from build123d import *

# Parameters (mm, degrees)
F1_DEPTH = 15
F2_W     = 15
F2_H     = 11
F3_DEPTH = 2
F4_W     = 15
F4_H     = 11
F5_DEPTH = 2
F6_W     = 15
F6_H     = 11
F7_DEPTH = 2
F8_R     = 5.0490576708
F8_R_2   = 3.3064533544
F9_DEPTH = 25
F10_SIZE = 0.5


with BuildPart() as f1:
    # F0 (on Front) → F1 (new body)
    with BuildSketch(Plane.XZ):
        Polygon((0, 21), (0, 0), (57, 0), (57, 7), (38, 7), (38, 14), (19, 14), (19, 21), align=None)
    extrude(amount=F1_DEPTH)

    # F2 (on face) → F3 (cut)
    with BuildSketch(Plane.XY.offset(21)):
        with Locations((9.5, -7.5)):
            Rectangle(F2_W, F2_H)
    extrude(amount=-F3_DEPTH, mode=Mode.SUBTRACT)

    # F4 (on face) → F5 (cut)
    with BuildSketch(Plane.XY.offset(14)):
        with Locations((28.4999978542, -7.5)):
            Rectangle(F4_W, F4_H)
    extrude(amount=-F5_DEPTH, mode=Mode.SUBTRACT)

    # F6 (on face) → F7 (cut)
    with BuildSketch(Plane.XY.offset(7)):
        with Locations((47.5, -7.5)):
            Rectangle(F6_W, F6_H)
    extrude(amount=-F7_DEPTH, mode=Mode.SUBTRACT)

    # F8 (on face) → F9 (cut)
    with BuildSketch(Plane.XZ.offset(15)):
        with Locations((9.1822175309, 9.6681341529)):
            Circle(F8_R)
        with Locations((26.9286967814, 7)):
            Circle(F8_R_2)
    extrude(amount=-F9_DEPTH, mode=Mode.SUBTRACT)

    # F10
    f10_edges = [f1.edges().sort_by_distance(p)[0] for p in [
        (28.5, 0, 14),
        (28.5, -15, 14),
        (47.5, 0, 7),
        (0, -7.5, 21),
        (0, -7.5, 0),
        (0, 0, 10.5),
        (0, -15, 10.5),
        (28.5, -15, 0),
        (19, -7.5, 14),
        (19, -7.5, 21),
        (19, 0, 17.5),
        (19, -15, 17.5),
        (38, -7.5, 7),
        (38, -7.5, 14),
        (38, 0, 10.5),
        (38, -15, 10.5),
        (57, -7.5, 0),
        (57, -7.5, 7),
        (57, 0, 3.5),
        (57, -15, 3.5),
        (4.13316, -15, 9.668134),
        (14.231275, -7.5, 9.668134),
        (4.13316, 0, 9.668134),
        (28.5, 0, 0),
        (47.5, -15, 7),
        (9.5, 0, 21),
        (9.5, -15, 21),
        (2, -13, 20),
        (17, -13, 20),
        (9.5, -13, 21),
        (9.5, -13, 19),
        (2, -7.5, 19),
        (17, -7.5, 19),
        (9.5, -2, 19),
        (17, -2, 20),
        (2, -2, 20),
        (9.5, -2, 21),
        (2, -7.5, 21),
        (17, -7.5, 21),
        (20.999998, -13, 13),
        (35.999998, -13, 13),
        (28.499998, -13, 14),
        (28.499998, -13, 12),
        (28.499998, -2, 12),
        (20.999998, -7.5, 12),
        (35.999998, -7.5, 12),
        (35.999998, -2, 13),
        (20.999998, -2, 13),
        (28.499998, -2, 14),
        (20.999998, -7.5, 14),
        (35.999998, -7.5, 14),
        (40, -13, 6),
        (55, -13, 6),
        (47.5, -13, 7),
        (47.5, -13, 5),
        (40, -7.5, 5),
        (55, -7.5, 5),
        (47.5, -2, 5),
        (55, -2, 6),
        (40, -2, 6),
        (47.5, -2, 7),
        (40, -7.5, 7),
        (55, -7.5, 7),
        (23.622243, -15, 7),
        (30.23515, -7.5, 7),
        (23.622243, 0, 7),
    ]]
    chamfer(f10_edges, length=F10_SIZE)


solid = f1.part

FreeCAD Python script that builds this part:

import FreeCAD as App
import Part
import Sketcher
from FreeCAD import Vector


def add_polygon(sketch, points):
    """Adds a closed chain of lines whose ends are joined by coincident constraints."""
    first, n = sketch.GeometryCount, len(points)
    for a, b in zip(points, points[1:] + points[:1]):
        sketch.addGeometry(Part.LineSegment(App.Vector(*a, 0), App.Vector(*b, 0)), False)
    for i in range(n):
        sketch.addConstraint(Sketcher.Constraint("Coincident", first + i, 2, first + (i + 1) % n, 1))

doc = App.newDocument("Part")
body = doc.addObject("PartDesign::Body", "Body")

sketch1 = doc.addObject("Sketcher::SketchObject", "Sketch")
body.addObject(sketch1)
sketch1.AttachmentSupport = (doc.XZ_Plane, [""])
sketch1.MapMode = "FlatFace"
add_polygon(sketch1, [(0, 21), (0, 0), (57, 0), (57, 7), (38, 7), (38, 14), (19, 14), (19, 21)])
sketch1.addConstraint(Sketcher.Constraint("Vertical", 0))
sketch1.addConstraint(Sketcher.Constraint("Horizontal", 1))
sketch1.addConstraint(Sketcher.Constraint("Vertical", 2))
sketch1.addConstraint(Sketcher.Constraint("Horizontal", 3))
sketch1.addConstraint(Sketcher.Constraint("Vertical", 4))
sketch1.addConstraint(Sketcher.Constraint("Horizontal", 5))
sketch1.addConstraint(Sketcher.Constraint("Vertical", 6))
sketch1.addConstraint(Sketcher.Constraint("Horizontal", 7))
sketch1.addConstraint(Sketcher.Constraint("Coincident", 0, 2, -1, 1))
sketch1.addConstraint(Sketcher.Constraint("Equal", 3, 5))
sketch1.addConstraint(Sketcher.Constraint("Equal", 5, 7))
sketch1.addConstraint(Sketcher.Constraint("Equal", 2, 4))
sketch1.addConstraint(Sketcher.Constraint("Equal", 4, 6))
sketch1.addConstraint(Sketcher.Constraint("DistanceX", 1, 1, 1, 2, 57.0))
sketch1.addConstraint(Sketcher.Constraint("DistanceY", 0, 2, 0, 1, 21.0))
pad1 = doc.addObject("PartDesign::Pad", "Pad")
body.addObject(pad1)
pad1.Profile = sketch1
pad1.Length = 15

sketch2 = doc.addObject("Sketcher::SketchObject", "Sketch001")
body.addObject(sketch2)
sketch2.AttachmentSupport = (doc.XY_Plane, [""])
sketch2.MapMode = "FlatFace"
sketch2.AttachmentOffset = App.Placement(Vector(0, 0, 21), App.Rotation())
add_polygon(sketch2, [(2, -2), (2, -13), (17, -13), (17, -2)])
sketch2.addConstraint(Sketcher.Constraint("Vertical", 0))
sketch2.addConstraint(Sketcher.Constraint("Horizontal", 1))
sketch2.addConstraint(Sketcher.Constraint("Vertical", 2))
sketch2.addConstraint(Sketcher.Constraint("Horizontal", 3))
sketch2.addConstraint(Sketcher.Constraint("DistanceX", 1, 1, 1, 2, 15.0))
sketch2.addConstraint(Sketcher.Constraint("DistanceY", 0, 2, 0, 1, 11.0))
sketch2.addConstraint(Sketcher.Constraint("DistanceX", -1, 1, 0, 2, 2.0))
sketch2.addConstraint(Sketcher.Constraint("DistanceY", 0, 2, -1, 1, 13.0))
pocket1 = doc.addObject("PartDesign::Pocket", "Pocket")
body.addObject(pocket1)
pocket1.Profile = sketch2
pocket1.Length = 2

sketch3 = doc.addObject("Sketcher::SketchObject", "Sketch002")
body.addObject(sketch3)
sketch3.AttachmentSupport = (doc.XY_Plane, [""])
sketch3.MapMode = "FlatFace"
sketch3.AttachmentOffset = App.Placement(Vector(0, 0, 14), App.Rotation())
add_polygon(sketch3, [(21, -2), (21, -13), (36, -13), (36, -2)])
sketch3.addConstraint(Sketcher.Constraint("Vertical", 0))
sketch3.addConstraint(Sketcher.Constraint("Horizontal", 1))
sketch3.addConstraint(Sketcher.Constraint("Vertical", 2))
sketch3.addConstraint(Sketcher.Constraint("Horizontal", 3))
sketch3.addConstraint(Sketcher.Constraint("DistanceX", 1, 1, 1, 2, 15.0))
sketch3.addConstraint(Sketcher.Constraint("DistanceY", 0, 2, 0, 1, 11.0))
sketch3.addConstraint(Sketcher.Constraint("DistanceY", 0, 2, -1, 1, 13.0))
sketch3.addConstraint(Sketcher.Constraint("DistanceX", -1, 1, 0, 2, 20.999998))
pocket2 = doc.addObject("PartDesign::Pocket", "Pocket001")
body.addObject(pocket2)
pocket2.Profile = sketch3
pocket2.Length = 2

sketch4 = doc.addObject("Sketcher::SketchObject", "Sketch003")
body.addObject(sketch4)
sketch4.AttachmentSupport = (doc.XY_Plane, [""])
sketch4.MapMode = "FlatFace"
sketch4.AttachmentOffset = App.Placement(Vector(0, 0, 7), App.Rotation())
add_polygon(sketch4, [(40, -2), (40, -13), (55, -13), (55, -2)])
sketch4.addConstraint(Sketcher.Constraint("Vertical", 0))
sketch4.addConstraint(Sketcher.Constraint("Horizontal", 1))
sketch4.addConstraint(Sketcher.Constraint("Vertical", 2))
sketch4.addConstraint(Sketcher.Constraint("Horizontal", 3))
sketch4.addConstraint(Sketcher.Constraint("DistanceX", 1, 1, 1, 2, 15.0))
sketch4.addConstraint(Sketcher.Constraint("DistanceY", 0, 2, 0, 1, 11.0))
sketch4.addConstraint(Sketcher.Constraint("DistanceX", -1, 1, 0, 2, 40.0))
sketch4.addConstraint(Sketcher.Constraint("DistanceY", 0, 2, -1, 1, 13.0))
pocket3 = doc.addObject("PartDesign::Pocket", "Pocket002")
body.addObject(pocket3)
pocket3.Profile = sketch4
pocket3.Length = 2

sketch5 = doc.addObject("Sketcher::SketchObject", "Sketch004")
body.addObject(sketch5)
sketch5.AttachmentSupport = (doc.XZ_Plane, [""])
sketch5.MapMode = "FlatFace"
sketch5.AttachmentOffset = App.Placement(Vector(0, 0, 15), App.Rotation())
sketch5.addGeometry(Part.Circle(Vector(9.2, 9.7, 0), Vector(0, 0, 1), 5), False)
sketch5.addGeometry(Part.Circle(Vector(26.9, 7, 0), Vector(0, 0, 1), 3.3), False)
sketch5.addConstraint(Sketcher.Constraint("DistanceY", -1, 1, 1, 3, 7.0))
sketch5.addConstraint(Sketcher.Constraint("Diameter", 0, 10.098115))
sketch5.addConstraint(Sketcher.Constraint("Diameter", 1, 6.612907))
sketch5.addConstraint(Sketcher.Constraint("DistanceX", 0, 3, 1, 3, 17.746479))
sketch5.addConstraint(Sketcher.Constraint("DistanceX", -1, 1, 0, 3, 9.182218))
sketch5.addConstraint(Sketcher.Constraint("DistanceY", -1, 1, 0, 3, 9.668134))
pocket4 = doc.addObject("PartDesign::Pocket", "Pocket003")
body.addObject(pocket4)
pocket4.Profile = sketch5
pocket4.Length = 25
doc.recompute()

chamfer = doc.addObject("PartDesign::Chamfer", "Chamfer")
body.addObject(chamfer)
chamfer.Base = (pocket4, ["Edge1"])
chamfer.UseAllEdges = True
chamfer.Size = 0.5

doc.recompute()
